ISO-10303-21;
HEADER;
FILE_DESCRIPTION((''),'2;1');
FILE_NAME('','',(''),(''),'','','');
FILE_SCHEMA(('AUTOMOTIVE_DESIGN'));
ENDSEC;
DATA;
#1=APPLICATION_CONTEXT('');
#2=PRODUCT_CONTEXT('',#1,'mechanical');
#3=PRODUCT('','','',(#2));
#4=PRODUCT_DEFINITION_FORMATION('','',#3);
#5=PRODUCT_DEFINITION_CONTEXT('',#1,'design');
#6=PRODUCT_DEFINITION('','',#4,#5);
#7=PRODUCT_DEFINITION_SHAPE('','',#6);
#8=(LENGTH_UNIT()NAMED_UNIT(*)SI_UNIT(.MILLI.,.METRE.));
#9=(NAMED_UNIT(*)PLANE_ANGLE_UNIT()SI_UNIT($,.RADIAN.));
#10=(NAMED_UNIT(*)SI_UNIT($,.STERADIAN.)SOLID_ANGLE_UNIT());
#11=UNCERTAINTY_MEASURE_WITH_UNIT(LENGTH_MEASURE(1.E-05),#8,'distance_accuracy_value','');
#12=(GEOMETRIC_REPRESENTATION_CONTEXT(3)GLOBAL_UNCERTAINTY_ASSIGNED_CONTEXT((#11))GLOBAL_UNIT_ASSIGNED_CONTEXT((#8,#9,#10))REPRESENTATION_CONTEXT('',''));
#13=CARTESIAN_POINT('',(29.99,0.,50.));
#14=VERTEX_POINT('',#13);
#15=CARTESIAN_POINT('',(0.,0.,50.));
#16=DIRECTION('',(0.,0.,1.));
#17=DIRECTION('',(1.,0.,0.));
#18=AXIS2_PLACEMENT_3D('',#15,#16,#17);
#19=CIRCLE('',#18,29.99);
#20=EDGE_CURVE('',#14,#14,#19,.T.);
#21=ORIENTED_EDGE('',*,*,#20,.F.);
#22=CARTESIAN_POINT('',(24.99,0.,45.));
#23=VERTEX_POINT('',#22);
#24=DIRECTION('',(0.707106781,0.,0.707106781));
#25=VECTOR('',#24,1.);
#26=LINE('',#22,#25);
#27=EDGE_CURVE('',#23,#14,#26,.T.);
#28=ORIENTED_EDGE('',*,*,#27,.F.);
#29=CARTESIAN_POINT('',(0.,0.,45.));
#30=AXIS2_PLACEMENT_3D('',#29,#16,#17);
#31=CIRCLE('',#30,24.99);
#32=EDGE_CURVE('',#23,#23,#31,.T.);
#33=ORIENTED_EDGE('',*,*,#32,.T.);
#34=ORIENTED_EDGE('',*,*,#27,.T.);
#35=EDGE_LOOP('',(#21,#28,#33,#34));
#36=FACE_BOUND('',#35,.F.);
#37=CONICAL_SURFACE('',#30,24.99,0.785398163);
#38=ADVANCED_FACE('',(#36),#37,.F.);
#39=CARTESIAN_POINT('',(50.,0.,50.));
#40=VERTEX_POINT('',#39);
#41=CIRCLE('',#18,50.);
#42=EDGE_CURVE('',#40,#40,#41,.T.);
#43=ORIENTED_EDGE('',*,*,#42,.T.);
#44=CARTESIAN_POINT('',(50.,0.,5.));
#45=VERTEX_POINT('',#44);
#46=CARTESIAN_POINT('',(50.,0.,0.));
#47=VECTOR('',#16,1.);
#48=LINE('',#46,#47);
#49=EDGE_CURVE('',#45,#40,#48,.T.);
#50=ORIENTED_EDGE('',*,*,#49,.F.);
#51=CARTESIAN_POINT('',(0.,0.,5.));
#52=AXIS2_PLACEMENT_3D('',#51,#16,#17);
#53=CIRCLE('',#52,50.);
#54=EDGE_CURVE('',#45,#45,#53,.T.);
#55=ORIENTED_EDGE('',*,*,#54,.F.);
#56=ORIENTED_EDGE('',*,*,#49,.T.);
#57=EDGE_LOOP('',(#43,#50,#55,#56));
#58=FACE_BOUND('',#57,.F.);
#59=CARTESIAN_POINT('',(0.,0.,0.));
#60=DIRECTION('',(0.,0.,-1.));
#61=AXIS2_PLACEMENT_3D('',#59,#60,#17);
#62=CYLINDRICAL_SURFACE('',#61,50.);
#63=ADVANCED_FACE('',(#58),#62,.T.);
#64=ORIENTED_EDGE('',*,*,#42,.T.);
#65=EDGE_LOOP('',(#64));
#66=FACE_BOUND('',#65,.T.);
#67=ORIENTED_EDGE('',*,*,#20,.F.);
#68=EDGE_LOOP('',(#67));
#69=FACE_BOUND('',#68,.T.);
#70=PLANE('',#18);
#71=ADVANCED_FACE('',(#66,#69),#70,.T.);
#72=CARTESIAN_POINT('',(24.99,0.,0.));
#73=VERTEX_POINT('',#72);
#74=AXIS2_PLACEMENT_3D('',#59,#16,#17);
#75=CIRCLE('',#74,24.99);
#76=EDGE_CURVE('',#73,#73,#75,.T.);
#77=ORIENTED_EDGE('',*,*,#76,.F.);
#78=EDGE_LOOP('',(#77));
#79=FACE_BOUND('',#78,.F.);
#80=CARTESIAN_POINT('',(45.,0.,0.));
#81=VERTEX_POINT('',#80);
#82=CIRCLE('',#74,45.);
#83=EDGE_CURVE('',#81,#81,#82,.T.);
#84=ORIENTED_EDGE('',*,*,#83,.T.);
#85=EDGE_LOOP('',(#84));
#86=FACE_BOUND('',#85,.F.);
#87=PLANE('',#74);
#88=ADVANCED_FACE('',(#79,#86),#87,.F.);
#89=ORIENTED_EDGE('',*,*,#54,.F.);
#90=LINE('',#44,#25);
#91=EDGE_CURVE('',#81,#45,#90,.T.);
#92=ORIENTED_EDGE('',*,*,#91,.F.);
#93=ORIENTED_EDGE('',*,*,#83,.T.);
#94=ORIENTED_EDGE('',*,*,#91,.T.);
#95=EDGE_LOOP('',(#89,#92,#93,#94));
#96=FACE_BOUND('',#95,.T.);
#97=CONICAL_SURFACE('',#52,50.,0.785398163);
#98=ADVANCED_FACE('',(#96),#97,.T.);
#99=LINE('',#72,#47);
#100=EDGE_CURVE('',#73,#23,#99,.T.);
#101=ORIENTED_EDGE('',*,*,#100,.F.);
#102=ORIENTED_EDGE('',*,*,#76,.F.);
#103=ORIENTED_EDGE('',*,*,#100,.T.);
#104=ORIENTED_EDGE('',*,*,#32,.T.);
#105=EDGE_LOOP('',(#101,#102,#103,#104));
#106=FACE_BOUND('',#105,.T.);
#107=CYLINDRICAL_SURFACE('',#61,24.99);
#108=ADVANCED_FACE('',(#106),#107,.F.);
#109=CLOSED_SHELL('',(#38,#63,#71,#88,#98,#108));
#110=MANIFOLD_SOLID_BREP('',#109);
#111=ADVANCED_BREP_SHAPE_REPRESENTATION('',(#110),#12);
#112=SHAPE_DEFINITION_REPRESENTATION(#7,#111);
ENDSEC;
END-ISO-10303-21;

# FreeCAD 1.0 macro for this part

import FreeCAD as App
import Part
import Sketcher

V = App.Vector
Q = App.Units.Quantity


def edges_at(feature, points):
    """Names of the edges that pass closest to the given points."""
    edges = feature.Shape.Edges
    near = lambda p: min(range(len(edges)), key=lambda i: edges[i].distToShape(Part.Vertex(*p))[0])
    return sorted({f"Edge{near(p) + 1}" for p in points})

doc = App.newDocument("Part")
body = doc.addObject("PartDesign::Body", "Body")

# Sketch on XY plane
sketch1 = body.newObject("Sketcher::SketchObject", "Sketch")
sketch1.AttachmentSupport = (doc.getObject("XY_Plane"), [""])
sketch1.MapMode = "FlatFace"
sketch1.addGeometry([
    Part.Circle(V(0, 0, 0), V(0, 0, 1), 50),
    Part.Circle(V(0, 0, 0), V(0, 0, 1), 25),
], False)
sketch1.addConstraint([
    Sketcher.Constraint("Coincident", 0, 3, -1, 1),
    Sketcher.Constraint("Coincident", 1, 3, -1, 1),
    Sketcher.Constraint("Diameter", 0, Q("100 mm")),
    Sketcher.Constraint("Diameter", 1, Q("49.98 mm")),
])
pad1 = body.newObject("PartDesign::Pad", "Pad")
pad1.Profile = sketch1
pad1.Length = 50
doc.recompute()

chamfer = body.newObject("PartDesign::Chamfer", "Chamfer")
chamfer.Base = (pad1, edges_at(pad1, [(-24.99, 0, 50)]))
chamfer.Size = 5
doc.recompute()

chamfer2 = body.newObject("PartDesign::Chamfer", "Chamfer001")
chamfer2.Base = (chamfer, edges_at(chamfer, [(-50, 0, 0)]))
chamfer2.Size = 5

doc.recompute()
